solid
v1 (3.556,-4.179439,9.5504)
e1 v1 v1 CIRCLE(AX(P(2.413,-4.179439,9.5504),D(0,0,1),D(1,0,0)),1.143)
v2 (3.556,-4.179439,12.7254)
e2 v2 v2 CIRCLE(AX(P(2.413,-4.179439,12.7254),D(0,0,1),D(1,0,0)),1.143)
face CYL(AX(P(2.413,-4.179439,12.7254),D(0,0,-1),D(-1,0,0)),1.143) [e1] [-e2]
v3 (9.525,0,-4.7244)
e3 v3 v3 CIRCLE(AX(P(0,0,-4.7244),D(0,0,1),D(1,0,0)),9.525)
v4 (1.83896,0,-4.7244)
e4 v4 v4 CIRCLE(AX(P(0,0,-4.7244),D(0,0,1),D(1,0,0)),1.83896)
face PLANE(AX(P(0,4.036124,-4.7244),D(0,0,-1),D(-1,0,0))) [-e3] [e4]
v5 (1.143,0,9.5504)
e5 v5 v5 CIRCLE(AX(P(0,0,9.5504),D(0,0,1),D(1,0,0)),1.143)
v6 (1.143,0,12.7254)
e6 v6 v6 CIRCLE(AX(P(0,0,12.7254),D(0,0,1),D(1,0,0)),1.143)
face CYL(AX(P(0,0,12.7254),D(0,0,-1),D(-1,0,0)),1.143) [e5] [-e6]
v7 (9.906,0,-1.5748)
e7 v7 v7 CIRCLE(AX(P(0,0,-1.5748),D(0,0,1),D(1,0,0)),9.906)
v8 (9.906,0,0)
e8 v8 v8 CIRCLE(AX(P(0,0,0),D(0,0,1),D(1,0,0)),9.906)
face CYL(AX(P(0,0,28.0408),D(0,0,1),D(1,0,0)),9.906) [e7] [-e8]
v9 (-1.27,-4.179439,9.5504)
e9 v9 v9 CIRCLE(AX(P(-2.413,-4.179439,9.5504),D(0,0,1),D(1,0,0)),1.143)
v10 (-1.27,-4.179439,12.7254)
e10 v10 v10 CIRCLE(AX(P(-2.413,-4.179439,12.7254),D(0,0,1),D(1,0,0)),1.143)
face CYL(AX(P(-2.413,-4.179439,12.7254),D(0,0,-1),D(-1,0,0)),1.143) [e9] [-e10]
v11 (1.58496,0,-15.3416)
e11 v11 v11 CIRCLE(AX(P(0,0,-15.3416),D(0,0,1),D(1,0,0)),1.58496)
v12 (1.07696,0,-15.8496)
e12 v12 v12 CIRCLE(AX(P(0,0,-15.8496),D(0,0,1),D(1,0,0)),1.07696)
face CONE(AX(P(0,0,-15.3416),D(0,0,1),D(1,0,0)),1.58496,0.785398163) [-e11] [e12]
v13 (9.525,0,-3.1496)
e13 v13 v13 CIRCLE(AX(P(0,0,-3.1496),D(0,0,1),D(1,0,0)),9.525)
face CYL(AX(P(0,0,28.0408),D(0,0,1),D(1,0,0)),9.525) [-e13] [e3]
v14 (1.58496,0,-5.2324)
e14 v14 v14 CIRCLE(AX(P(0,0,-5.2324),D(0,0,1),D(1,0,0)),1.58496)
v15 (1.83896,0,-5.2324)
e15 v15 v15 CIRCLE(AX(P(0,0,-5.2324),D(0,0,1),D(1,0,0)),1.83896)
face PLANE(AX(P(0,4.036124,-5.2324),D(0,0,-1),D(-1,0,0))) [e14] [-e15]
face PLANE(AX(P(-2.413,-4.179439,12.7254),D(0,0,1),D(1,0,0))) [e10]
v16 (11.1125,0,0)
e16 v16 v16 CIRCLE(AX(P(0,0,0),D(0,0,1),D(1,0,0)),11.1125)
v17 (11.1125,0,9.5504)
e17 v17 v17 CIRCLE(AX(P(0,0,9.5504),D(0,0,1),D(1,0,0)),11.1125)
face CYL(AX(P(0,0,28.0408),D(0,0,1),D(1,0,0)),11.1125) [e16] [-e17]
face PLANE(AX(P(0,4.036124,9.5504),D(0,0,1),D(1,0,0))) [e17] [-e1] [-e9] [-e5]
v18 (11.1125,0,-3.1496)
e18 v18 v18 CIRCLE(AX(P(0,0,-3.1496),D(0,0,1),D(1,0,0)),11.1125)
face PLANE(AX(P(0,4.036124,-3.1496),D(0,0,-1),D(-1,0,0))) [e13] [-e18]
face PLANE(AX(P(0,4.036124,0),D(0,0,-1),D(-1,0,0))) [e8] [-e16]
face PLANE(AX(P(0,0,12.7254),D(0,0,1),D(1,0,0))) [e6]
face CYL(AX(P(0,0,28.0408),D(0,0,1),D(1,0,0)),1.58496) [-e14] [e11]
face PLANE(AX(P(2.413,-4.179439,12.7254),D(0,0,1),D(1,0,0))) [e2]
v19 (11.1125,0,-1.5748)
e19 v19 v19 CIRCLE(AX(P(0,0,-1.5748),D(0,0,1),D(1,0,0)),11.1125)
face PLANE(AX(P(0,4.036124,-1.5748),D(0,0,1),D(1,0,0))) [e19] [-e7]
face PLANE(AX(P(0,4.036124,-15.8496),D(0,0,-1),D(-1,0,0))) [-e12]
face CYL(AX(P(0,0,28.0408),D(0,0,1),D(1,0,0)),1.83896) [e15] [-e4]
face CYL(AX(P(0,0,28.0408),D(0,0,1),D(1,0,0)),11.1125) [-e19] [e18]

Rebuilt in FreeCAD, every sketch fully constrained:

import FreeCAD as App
import Part
import Sketcher
Q = App.Units.Quantity


def add_polygon(sketch, points):
    """Adds a closed chain of lines whose ends are joined by coincident constraints."""
    first, n = sketch.GeometryCount, len(points)
    for a, b in zip(points, points[1:] + points[:1]):
        sketch.addGeometry(Part.LineSegment(App.Vector(*a, 0), App.Vector(*b, 0)), False)
    for i in range(n):
        sketch.addConstraint(Sketcher.Constraint("Coincident", first + i, 2, first + (i + 1) % n, 1))

doc = App.newDocument("Part")
body = doc.addObject("PartDesign::Body", "Body")

# Sketch on YZ plane
sketch1 = body.newObject("Sketcher::SketchObject", "Sketch")
sketch1.AttachmentSupport = (doc.getObject("YZ_Plane"), [""])
sketch1.MapMode = "FlatFace"
add_polygon(sketch1, [(11.11, 9.55), (0, 9.55), (0, -15.85), (1.08, -15.85), (1.58, -15.34), (1.58, -5.23), (1.84, -5.23), (1.84, -4.72), (9.53, -4.72), (9.53, -3.15), (11.11, -3.15), (11.11, -1.57), (9.91, -1.57), (9.91, 0), (11.11, 0)])  # lines 0-14
sketch1.addConstraint([
    Sketcher.Constraint("Horizontal", 0),
    Sketcher.Constraint("Vertical", 1),
    Sketcher.Constraint("Horizontal", 2),
    Sketcher.Constraint("Vertical", 4),
    Sketcher.Constraint("Horizontal", 5),
    Sketcher.Constraint("Vertical", 6),
    Sketcher.Constraint("Horizontal", 7),
    Sketcher.Constraint("Vertical", 8),
    Sketcher.Constraint("Horizontal", 9),
    Sketcher.Constraint("Vertical", 10),
    Sketcher.Constraint("Horizontal", 11),
    Sketcher.Constraint("Vertical", 12),
    Sketcher.Constraint("Horizontal", 13),
    Sketcher.Constraint("Vertical", 14),
    Sketcher.Constraint("PointOnObject", 0, 2, -2),
    Sketcher.Constraint("PointOnObject", 12, 2, -1),
    Sketcher.Constraint("Vertical", 10, 2, 13, 2),
    Sketcher.Constraint("Equal", 8, 10),
    Sketcher.Constraint("Equal", 10, 12),
    Sketcher.Constraint("DistanceY", 1, 2, 1, 1, Q("1 in")),
    Sketcher.Constraint("Angle", 3, Q("45 deg")),
    Sketcher.Constraint("DistanceX", 5, 1, 5, 2, Q("0.01 in")),
    Sketcher.Constraint("DistanceY", 6, 1, 6, 2, Q("0.02 in")),
    Sketcher.Constraint("DistanceX", 0, 2, 0, 1, Q("0.4375 in")),
    Sketcher.Constraint("DistanceX", 9, 1, 9, 2, Q("0.0625 in")),
    Sketcher.Constraint("DistanceY", 4, 1, 4, 2, Q("0.398 in")),
    Sketcher.Constraint("DistanceY", 8, 1, 8, 2, Q("0.062 in")),
    Sketcher.Constraint("DistanceY", 14, 1, 14, 2, Q("0.376 in")),
    Sketcher.Constraint("DistanceX", -1, 1, 11, 2, Q("0.39 in")),
    Sketcher.Constraint("DistanceX", 2, 1, 2, 2, Q("0.0424 in")),
])
revolution = body.newObject("PartDesign::Revolution", "Revolution")
revolution.Profile = sketch1
revolution.ReferenceAxis = (sketch1, ["V_Axis"])
revolution.Angle = 360

# Sketch on XY plane
sketch2 = body.newObject("Sketcher::SketchObject", "Sketch001")
sketch2.AttachmentSupport = (doc.getObject("XY_Plane"), [""])
sketch2.MapMode = "FlatFace"
sketch2.AttachmentOffset = App.Placement(App.Vector(0, 0, 0.376 * 25.4), App.Rotation())
sketch2.addGeometry([
    Part.Circle(App.Vector(0, 0, 0), App.Vector(0, 0, 1), 1.1),
    Part.Circle(App.Vector(-2.4, -4.2, 0), App.Vector(0, 0, 1), 1.1),
    Part.Circle(App.Vector(2.4, -4.2, 0), App.Vector(0, 0, 1), 1.1),
], False)
sketch2.addConstraint([
    Sketcher.Constraint("Coincident", 0, 3, -1, 1),
    Sketcher.Constraint("Equal", 0, 1),
    Sketcher.Constraint("Equal", 1, 2),
    Sketcher.Constraint("Symmetric", 1, 3, 2, 3, -2),
    Sketcher.Constraint("Diameter", 0, Q("0.09 in")),
    Sketcher.Constraint("DistanceX", 1, 3, 2, 3, Q("0.19 in")),
    Sketcher.Constraint("DistanceY", 1, 3, -1, 1, 4.179439),
])
pad1 = body.newObject("PartDesign::Pad", "Pad")
pad1.Profile = sketch2
pad1.Length = Q("0.125 in")

doc.recompute()
